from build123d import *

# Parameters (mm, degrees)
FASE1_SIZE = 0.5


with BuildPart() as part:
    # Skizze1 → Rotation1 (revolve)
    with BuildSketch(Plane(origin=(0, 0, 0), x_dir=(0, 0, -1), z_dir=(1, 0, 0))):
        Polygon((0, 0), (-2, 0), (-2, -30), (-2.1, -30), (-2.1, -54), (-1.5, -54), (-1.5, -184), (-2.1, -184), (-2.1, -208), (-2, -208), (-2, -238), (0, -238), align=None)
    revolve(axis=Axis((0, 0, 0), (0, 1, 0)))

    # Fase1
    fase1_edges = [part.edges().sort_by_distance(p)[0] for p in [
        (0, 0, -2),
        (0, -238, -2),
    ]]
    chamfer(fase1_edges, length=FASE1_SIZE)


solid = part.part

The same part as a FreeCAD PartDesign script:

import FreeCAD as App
import Part
import Sketcher
from FreeCAD import Vector


def edges_at(feature, points):
    """Names of the edges that pass closest to the given points."""
    edges = feature.Shape.Edges
    near = lambda p: min(range(len(edges)), key=lambda i: edges[i].distToShape(Part.Vertex(*p))[0])
    return sorted({f"Edge{near(p) + 1}" for p in points})


def add_polygon(sketch, points):
    """Adds a closed chain of lines whose ends are joined by coincident constraints."""
    first, n = sketch.GeometryCount, len(points)
    for a, b in zip(points, points[1:] + points[:1]):
        sketch.addGeometry(Part.LineSegment(App.Vector(*a, 0), App.Vector(*b, 0)), False)
    for i in range(n):
        sketch.addConstraint(Sketcher.Constraint("Coincident", first + i, 2, first + (i + 1) % n, 1))

doc = App.newDocument("Part")
params = doc.addObject("Spreadsheet::Sheet", "Params")
for row, (alias, value) in enumerate([
    ("sketch1_width", "30 mm"),
    ("sketch1_width2", "24 mm"),
    ("sketch1_width3", "130 mm"),
    ("sketch1_height", "2 mm"),
    ("sketch1_height2", "0.1 mm"),
    ("revolution_angle", "360 deg"),
    ("chamfer_size", "0.5 mm"),
], start=1):
    params.set(f"A{row}", alias)
    params.set(f"B{row}", "=" + value)
    params.setAlias(f"B{row}", alias)

body = doc.addObject("PartDesign::Body", "Body")

sketch1 = body.newObject("Sketcher::SketchObject", "Sketch")
sketch1.AttachmentSupport = (doc.getObject("YZ_Plane"), [""])
sketch1.MapMode = "FlatFace"
add_polygon(sketch1, [(0, 0), (0, 2), (-30, 2), (-30, 2.1), (-54, 2.1), (-54, 1.5), (-184, 1.5), (-184, 2.1), (-208, 2.1), (-208, 2), (-238, 2), (-238, 0)])
sketch1.addConstraint([
    Sketcher.Constraint("Vertical", 0),
    Sketcher.Constraint("Horizontal", 1),
    Sketcher.Constraint("Vertical", 2),
    Sketcher.Constraint("Horizontal", 3),
    Sketcher.Constraint("Vertical", 4),
    Sketcher.Constraint("Horizontal", 5),
    Sketcher.Constraint("Vertical", 6),
    Sketcher.Constraint("Horizontal", 7),
    Sketcher.Constraint("Vertical", 8),
    Sketcher.Constraint("Horizontal", 9),
    Sketcher.Constraint("Vertical", 10),
    Sketcher.Constraint("Horizontal", 11),
    Sketcher.Constraint("Coincident", 11, 2, -1, 1),
    Sketcher.Constraint("Horizontal", 3, 2, 6, 2),
    Sketcher.Constraint("Horizontal", 1, 2, 8, 2),
    Sketcher.Constraint("Equal", 3, 7),
    Sketcher.Constraint("Equal", 1, 9),
    Sketcher.Constraint("DistanceX", 1, 2, 1, 1, 30.0),
    Sketcher.Constraint("DistanceX", 3, 2, 3, 1, 24.0),
    Sketcher.Constraint("DistanceX", 5, 2, 5, 1, 130.0),
    Sketcher.Constraint("DistanceY", 0, 1, 0, 2, 2.0),
    Sketcher.Constraint("DistanceY", 2, 1, 2, 2, 0.1),
    Sketcher.Constraint("DistanceY", 4, 2, 4, 1, 0.6),
])
sketch1.setExpression("Constraints[29]", "Params.sketch1_width")
sketch1.setExpression("Constraints[30]", "Params.sketch1_width2")
sketch1.setExpression("Constraints[31]", "Params.sketch1_width3")
sketch1.setExpression("Constraints[32]", "Params.sketch1_height")
sketch1.setExpression("Constraints[33]", "Params.sketch1_height2")
revolution = body.newObject("PartDesign::Revolution", "Revolution")
revolution.Profile = sketch1
revolution.ReferenceAxis = (sketch1, ["H_Axis"])
revolution.setExpression("Angle", "Params.revolution_angle")
doc.recompute()

chamfer = body.newObject("PartDesign::Chamfer", "Chamfer")
chamfer.Base = (revolution, edges_at(revolution, [(0, 0, -2), (0, -238, -2)]))
chamfer.setExpression("Size", "Params.chamfer_size")

doc.recompute()
